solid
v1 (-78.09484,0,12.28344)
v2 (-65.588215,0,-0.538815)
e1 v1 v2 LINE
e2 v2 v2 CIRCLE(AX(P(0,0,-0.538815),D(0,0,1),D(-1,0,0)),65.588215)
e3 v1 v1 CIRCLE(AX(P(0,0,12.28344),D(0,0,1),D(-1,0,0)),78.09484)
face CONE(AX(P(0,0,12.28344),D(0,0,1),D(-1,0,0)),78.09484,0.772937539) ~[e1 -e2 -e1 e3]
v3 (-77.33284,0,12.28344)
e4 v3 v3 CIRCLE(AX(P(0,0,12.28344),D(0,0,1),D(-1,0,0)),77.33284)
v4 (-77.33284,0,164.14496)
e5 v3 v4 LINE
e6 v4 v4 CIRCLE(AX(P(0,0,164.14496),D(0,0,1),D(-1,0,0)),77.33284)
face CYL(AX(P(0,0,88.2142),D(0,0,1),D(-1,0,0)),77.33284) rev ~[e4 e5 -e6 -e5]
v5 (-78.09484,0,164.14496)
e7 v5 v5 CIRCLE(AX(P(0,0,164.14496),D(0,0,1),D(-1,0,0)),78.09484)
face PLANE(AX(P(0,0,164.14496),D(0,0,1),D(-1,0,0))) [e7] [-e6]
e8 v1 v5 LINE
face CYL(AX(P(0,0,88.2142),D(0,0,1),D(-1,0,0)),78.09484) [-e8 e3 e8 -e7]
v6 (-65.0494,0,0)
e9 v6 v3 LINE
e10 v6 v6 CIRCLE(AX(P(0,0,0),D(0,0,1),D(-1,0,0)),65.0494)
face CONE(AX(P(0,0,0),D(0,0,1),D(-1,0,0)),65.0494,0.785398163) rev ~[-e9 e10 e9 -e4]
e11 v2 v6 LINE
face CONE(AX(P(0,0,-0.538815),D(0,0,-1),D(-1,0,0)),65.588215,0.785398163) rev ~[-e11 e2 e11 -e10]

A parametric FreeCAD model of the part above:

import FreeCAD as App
import Part
import Sketcher
Q = App.Units.Quantity

doc = App.newDocument("Part")
body = doc.addObject("PartDesign::Body", "Body")

sketch1 = body.newObject("Sketcher::SketchObject", "Sketch")
sketch1.AttachmentSupport = (doc.getObject("XZ_Plane"), [""])
sketch1.MapMode = "FlatFace"
sketch1.addGeometry(Part.LineSegment(App.Vector(-78.1, 164.1, 0), App.Vector(-78.1, 12.3, 0)), False)
sketch1.addGeometry(Part.LineSegment(App.Vector(-78.1, 12.3, 0), App.Vector(-65.6, -0.5, 0)), False)
sketch1.addGeometry(Part.LineSegment(App.Vector(-65.6, -0.5, 0), App.Vector(-65, 0, 0)), False)
sketch1.addGeometry(Part.LineSegment(App.Vector(-65, 0, 0), App.Vector(-77.3, 12.3, 0)), False)
sketch1.addGeometry(Part.LineSegment(App.Vector(-77.3, 12.3, 0), App.Vector(-77.3, 164.1, 0)), False)
sketch1.addGeometry(Part.LineSegment(App.Vector(-77.3, 164.1, 0), App.Vector(-78.1, 164.1, 0)), False)
sketch1.addConstraint(Sketcher.Constraint("Coincident", 0, 2, 1, 1))
sketch1.addConstraint(Sketcher.Constraint("Coincident", 1, 2, 2, 1))
sketch1.addConstraint(Sketcher.Constraint("Coincident", 2, 2, 3, 1))
sketch1.addConstraint(Sketcher.Constraint("Coincident", 3, 2, 4, 1))
sketch1.addConstraint(Sketcher.Constraint("Coincident", 4, 2, 5, 1))
sketch1.addConstraint(Sketcher.Constraint("Coincident", 5, 2, 0, 1))
sketch1.addConstraint(Sketcher.Constraint("Vertical", 0))
sketch1.addConstraint(Sketcher.Constraint("Vertical", 4))
sketch1.addConstraint(Sketcher.Constraint("Horizontal", 5))
sketch1.addConstraint(Sketcher.Constraint("PointOnObject", 2, 2, -1))
sketch1.addConstraint(Sketcher.Constraint("Perpendicular", 2, 3))
sketch1.addConstraint(Sketcher.Constraint("Horizontal", 0, 2, 3, 2))
sketch1.addConstraint(Sketcher.Constraint("Angle", 2, Q("45 deg")))
sketch1.addConstraint(Sketcher.Constraint("DistanceX", 5, 2, 5, 1, Q("0.03 in")))
sketch1.addConstraint(Sketcher.Constraint("Distance", 2, Q("0.03 in")))
sketch1.addConstraint(Sketcher.Constraint("DistanceY", 0, 2, 0, 1, Q("5.9788 in")))
sketch1.addConstraint(Sketcher.Constraint("DistanceX", 2, 2, -1, 1, Q("2.561 in")))
sketch1.addConstraint(Sketcher.Constraint("DistanceX", 0, 2, -1, 1, Q("3.0746 in")))
revolution = body.newObject("PartDesign::Revolution", "Revolution")
revolution.Profile = sketch1
revolution.ReferenceAxis = (sketch1, ["V_Axis"])
revolution.Angle = 360

doc.recompute()
